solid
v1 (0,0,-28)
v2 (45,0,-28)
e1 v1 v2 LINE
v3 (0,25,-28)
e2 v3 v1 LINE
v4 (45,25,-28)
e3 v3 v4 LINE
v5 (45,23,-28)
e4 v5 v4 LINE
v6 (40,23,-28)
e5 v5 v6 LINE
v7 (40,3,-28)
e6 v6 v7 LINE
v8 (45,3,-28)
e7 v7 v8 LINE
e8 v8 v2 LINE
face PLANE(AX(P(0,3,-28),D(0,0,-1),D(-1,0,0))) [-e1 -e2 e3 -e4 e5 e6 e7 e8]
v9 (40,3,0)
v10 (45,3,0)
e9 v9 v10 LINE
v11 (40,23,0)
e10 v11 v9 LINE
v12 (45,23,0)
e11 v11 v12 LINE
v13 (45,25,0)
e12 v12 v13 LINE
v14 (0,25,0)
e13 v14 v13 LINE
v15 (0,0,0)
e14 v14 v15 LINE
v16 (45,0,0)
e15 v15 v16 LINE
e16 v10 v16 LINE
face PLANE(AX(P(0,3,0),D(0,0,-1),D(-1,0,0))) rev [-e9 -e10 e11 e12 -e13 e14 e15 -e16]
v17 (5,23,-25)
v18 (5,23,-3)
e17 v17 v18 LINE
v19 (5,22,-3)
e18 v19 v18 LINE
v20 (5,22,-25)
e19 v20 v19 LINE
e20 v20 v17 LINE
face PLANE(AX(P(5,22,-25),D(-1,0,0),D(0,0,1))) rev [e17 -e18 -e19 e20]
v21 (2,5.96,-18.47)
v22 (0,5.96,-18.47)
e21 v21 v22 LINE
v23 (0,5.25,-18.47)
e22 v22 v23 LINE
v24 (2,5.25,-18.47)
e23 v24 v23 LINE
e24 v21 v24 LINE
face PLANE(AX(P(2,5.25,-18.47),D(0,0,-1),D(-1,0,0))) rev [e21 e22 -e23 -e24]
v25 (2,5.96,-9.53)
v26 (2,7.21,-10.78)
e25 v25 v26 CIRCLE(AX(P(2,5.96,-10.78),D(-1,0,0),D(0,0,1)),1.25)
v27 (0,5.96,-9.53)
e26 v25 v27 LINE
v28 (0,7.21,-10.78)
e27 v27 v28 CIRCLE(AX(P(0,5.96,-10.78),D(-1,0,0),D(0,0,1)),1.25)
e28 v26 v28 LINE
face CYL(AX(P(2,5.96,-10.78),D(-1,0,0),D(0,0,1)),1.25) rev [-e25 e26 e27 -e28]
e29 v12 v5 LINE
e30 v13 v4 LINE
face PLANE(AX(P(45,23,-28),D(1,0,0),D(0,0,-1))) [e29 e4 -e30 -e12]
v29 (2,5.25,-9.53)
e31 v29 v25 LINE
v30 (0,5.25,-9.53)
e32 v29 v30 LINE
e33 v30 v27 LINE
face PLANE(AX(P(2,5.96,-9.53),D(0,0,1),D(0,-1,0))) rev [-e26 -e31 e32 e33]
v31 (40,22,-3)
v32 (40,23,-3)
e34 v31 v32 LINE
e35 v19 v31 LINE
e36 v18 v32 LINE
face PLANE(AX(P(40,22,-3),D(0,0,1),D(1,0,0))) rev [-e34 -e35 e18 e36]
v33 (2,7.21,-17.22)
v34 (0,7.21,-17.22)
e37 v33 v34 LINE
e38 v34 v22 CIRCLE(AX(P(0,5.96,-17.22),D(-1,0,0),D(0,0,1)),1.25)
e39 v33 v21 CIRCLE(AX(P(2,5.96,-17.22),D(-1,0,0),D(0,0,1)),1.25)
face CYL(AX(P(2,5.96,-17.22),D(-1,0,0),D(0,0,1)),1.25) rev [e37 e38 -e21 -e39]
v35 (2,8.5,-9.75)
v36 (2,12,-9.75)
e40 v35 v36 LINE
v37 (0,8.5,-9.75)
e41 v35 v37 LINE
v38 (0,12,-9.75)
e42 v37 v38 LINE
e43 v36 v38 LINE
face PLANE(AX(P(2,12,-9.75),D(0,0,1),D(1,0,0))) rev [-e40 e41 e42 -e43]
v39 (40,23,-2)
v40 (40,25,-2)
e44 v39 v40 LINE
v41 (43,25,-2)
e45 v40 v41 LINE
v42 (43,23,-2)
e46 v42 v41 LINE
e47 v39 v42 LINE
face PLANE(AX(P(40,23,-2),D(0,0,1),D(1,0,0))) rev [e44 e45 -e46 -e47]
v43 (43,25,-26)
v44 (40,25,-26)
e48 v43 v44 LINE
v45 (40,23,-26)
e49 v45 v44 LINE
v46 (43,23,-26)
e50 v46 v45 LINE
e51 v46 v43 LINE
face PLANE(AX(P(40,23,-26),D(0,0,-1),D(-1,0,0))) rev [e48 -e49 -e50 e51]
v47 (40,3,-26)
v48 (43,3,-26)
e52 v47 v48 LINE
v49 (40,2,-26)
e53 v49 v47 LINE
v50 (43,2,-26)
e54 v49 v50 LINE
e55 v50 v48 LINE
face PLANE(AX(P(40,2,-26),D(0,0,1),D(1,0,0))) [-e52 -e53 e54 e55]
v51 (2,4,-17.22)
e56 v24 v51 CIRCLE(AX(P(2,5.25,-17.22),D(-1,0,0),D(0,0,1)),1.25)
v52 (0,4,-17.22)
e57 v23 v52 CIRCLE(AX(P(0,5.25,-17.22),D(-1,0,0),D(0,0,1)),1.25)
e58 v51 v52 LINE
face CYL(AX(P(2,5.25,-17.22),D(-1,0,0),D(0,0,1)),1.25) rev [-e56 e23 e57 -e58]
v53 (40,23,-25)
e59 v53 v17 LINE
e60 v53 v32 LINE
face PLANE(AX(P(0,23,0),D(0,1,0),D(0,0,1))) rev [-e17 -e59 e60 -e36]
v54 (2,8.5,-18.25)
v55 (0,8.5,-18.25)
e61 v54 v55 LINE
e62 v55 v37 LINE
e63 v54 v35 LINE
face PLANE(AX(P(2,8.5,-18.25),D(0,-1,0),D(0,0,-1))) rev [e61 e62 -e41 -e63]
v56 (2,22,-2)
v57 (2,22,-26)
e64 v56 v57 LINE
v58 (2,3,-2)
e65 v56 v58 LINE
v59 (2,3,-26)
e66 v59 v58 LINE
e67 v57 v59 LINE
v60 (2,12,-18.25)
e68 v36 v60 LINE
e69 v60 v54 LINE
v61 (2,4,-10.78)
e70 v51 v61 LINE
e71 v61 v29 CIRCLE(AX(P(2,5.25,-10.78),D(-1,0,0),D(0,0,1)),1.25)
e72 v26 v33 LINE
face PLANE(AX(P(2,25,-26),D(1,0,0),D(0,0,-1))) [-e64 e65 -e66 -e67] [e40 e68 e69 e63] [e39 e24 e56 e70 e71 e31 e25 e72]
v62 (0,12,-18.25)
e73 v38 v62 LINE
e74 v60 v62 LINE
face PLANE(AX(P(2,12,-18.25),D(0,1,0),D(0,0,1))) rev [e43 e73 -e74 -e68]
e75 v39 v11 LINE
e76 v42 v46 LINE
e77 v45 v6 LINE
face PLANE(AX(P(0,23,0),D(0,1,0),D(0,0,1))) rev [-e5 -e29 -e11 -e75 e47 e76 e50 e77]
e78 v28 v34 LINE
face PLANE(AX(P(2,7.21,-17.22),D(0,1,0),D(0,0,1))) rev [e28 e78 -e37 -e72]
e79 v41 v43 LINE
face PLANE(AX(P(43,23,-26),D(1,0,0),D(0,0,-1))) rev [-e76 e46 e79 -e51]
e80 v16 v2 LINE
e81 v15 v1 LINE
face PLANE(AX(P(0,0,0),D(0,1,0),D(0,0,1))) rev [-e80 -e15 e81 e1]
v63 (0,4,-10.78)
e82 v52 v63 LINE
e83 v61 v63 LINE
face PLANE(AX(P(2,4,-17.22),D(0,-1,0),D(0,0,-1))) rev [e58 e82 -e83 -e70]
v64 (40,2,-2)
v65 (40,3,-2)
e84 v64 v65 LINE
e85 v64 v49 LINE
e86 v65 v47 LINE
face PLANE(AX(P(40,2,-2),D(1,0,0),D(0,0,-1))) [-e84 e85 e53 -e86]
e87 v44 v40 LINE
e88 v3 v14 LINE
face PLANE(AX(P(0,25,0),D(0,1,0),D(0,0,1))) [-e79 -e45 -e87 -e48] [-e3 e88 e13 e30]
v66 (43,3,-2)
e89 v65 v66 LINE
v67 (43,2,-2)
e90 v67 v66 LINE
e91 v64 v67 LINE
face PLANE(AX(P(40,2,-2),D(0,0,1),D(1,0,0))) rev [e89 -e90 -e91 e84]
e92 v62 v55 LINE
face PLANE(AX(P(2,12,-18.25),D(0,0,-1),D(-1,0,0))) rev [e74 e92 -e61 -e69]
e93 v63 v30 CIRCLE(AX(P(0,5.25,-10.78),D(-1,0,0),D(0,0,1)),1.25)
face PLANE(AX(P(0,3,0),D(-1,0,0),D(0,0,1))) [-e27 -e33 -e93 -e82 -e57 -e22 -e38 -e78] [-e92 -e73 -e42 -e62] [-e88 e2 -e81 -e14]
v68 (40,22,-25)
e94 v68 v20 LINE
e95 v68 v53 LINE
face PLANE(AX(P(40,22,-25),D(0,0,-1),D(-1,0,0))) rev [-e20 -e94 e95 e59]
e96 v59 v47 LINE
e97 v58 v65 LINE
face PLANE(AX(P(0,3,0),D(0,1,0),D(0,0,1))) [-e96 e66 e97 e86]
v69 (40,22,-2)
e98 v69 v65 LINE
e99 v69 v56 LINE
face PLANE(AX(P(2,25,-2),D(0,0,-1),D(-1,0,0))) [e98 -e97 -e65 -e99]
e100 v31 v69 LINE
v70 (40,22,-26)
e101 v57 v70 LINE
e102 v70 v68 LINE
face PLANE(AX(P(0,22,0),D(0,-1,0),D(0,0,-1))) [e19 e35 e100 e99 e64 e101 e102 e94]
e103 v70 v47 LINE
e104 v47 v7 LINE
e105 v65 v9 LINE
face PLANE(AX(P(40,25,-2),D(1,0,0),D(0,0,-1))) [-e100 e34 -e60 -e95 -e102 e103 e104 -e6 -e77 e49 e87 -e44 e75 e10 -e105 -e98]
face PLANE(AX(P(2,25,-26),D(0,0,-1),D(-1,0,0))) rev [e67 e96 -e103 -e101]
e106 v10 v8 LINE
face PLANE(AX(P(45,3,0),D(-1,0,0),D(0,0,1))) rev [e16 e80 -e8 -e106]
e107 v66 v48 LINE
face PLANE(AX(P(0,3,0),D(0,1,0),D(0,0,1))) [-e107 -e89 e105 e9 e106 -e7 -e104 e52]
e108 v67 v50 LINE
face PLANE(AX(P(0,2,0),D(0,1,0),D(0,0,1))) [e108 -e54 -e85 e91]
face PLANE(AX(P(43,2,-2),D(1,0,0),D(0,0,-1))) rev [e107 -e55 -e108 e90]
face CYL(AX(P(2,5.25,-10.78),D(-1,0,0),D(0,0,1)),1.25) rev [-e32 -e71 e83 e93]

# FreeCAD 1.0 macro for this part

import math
import FreeCAD as App
import Part
import Sketcher
from FreeCAD import Vector
Q = App.Units.Quantity

doc = App.newDocument("Part")
body = doc.addObject("PartDesign::Body", "Body")

sketch1 = body.newObject("Sketcher::SketchObject", "Sketch")
sketch1.AttachmentSupport = (doc.getObject("XZ_Plane"), [""])
sketch1.MapMode = "FlatFace"
sketch1.addGeometry([
    Part.LineSegment(Vector(0, -28, 0), Vector(0, 0, 0)),
    Part.LineSegment(Vector(0, 0, 0), Vector(45, 0, 0)),
    Part.LineSegment(Vector(45, 0, 0), Vector(45, -28, 0)),
    Part.LineSegment(Vector(45, -28, 0), Vector(0, -28, 0)),
], False)
sketch1.addConstraint([
    Sketcher.Constraint("Coincident", 0, 2, 1, 1),
    Sketcher.Constraint("Coincident", 1, 2, 2, 1),
    Sketcher.Constraint("Coincident", 2, 2, 3, 1),
    Sketcher.Constraint("Coincident", 3, 2, 0, 1),
    Sketcher.Constraint("Vertical", 0),
    Sketcher.Constraint("Horizontal", 1),
    Sketcher.Constraint("Vertical", 2),
    Sketcher.Constraint("Horizontal", 3),
    Sketcher.Constraint("Coincident", 0, 2, -1, 1),
    Sketcher.Constraint("DistanceX", 1, 1, 1, 2, Q("45 mm")),
    Sketcher.Constraint("DistanceY", 0, 1, 0, 2, Q("28 mm")),
])
pad1 = body.newObject("PartDesign::Pad", "Pad")
pad1.Profile = sketch1
pad1.Length = 3
pad1.Reversed = True

sketch2 = body.newObject("Sketcher::SketchObject", "Sketch001")
sketch2.AttachmentSupport = (doc.getObject("XZ_Plane"), [""])
sketch2.MapMode = "FlatFace"
sketch2.AttachmentOffset = App.Placement(Vector(0, 0, -3), App.Rotation())
sketch2.addGeometry([
    Part.LineSegment(Vector(40, -26, 0), Vector(40, -28, 0)),
    Part.LineSegment(Vector(40, -28, 0), Vector(0, -28, 0)),
    Part.LineSegment(Vector(0, -28, 0), Vector(0, 0, 0)),
    Part.LineSegment(Vector(0, 0, 0), Vector(40, 0, 0)),
    Part.LineSegment(Vector(40, 0, 0), Vector(40, -2, 0)),
    Part.LineSegment(Vector(40, -2, 0), Vector(2, -2, 0)),
    Part.LineSegment(Vector(2, -2, 0), Vector(2, -26, 0)),
    Part.LineSegment(Vector(2, -26, 0), Vector(40, -26, 0)),
], False)
sketch2.addConstraint([
    Sketcher.Constraint("Coincident", 0, 2, 1, 1),
    Sketcher.Constraint("Coincident", 1, 2, 2, 1),
    Sketcher.Constraint("Coincident", 2, 2, 3, 1),
    Sketcher.Constraint("Coincident", 3, 2, 4, 1),
    Sketcher.Constraint("Coincident", 4, 2, 5, 1),
    Sketcher.Constraint("Coincident", 5, 2, 6, 1),
    Sketcher.Constraint("Coincident", 6, 2, 7, 1),
    Sketcher.Constraint("Coincident", 7, 2, 0, 1),
    Sketcher.Constraint("Vertical", 0),
    Sketcher.Constraint("Horizontal", 1),
    Sketcher.Constraint("Vertical", 2),
    Sketcher.Constraint("Horizontal", 3),
    Sketcher.Constraint("Vertical", 4),
    Sketcher.Constraint("Horizontal", 5),
    Sketcher.Constraint("Vertical", 6),
    Sketcher.Constraint("Horizontal", 7),
    Sketcher.Constraint("Coincident", 2, 2, -1, 1),
    Sketcher.Constraint("Vertical", 0, 2, 3, 2),
    Sketcher.Constraint("Equal", 0, 4),
    Sketcher.Constraint("DistanceX", 1, 2, 1, 1, Q("40 mm")),
    Sketcher.Constraint("DistanceX", 5, 2, 5, 1, Q("38 mm")),
    Sketcher.Constraint("DistanceY", 0, 2, 0, 1, Q("2 mm")),
    Sketcher.Constraint("DistanceY", 2, 1, 2, 2, Q("28 mm")),
])
pad2 = body.newObject("PartDesign::Pad", "Pad001")
pad2.Profile = sketch2
pad2.Length = 22
pad2.Reversed = True

sketch3 = body.newObject("Sketcher::SketchObject", "Sketch002")
sketch3.AttachmentSupport = (doc.getObject("XZ_Plane"), [""])
sketch3.MapMode = "FlatFace"
sketch3.AttachmentOffset = App.Placement(Vector(0, 0, -25), App.Rotation())
sketch3.addGeometry([
    Part.LineSegment(Vector(0, -28, 0), Vector(0, 0, 0)),
    Part.LineSegment(Vector(0, 0, 0), Vector(45, 0, 0)),
    Part.LineSegment(Vector(45, 0, 0), Vector(45, -28, 0)),
    Part.LineSegment(Vector(45, -28, 0), Vector(0, -28, 0)),
    Part.LineSegment(Vector(43, -2, 0), Vector(40, -2, 0)),
    Part.LineSegment(Vector(40, -2, 0), Vector(40, -26, 0)),
    Part.LineSegment(Vector(40, -26, 0), Vector(43, -26, 0)),
    Part.LineSegment(Vector(43, -26, 0), Vector(43, -2, 0)),
], False)
sketch3.addConstraint([
    Sketcher.Constraint("Coincident", 0, 2, 1, 1),
    Sketcher.Constraint("Coincident", 1, 2, 2, 1),
    Sketcher.Constraint("Coincident", 2, 2, 3, 1),
    Sketcher.Constraint("Coincident", 3, 2, 0, 1),
    Sketcher.Constraint("Coincident", 4, 2, 5, 1),
    Sketcher.Constraint("Coincident", 5, 2, 6, 1),
    Sketcher.Constraint("Coincident", 6, 2, 7, 1),
    Sketcher.Constraint("Coincident", 7, 2, 4, 1),
    Sketcher.Constraint("Vertical", 0),
    Sketcher.Constraint("Horizontal", 1),
    Sketcher.Constraint("Vertical", 2),
    Sketcher.Constraint("Horizontal", 3),
    Sketcher.Constraint("Horizontal", 4),
    Sketcher.Constraint("Vertical", 5),
    Sketcher.Constraint("Horizontal", 6),
    Sketcher.Constraint("Vertical", 7),
    Sketcher.Constraint("Coincident", 0, 2, -1, 1),
    Sketcher.Constraint("DistanceX", 1, 1, 1, 2, Q("45 mm")),
    Sketcher.Constraint("DistanceX", 4, 2, 4, 1, Q("3 mm")),
    Sketcher.Constraint("DistanceY", 0, 1, 0, 2, Q("28 mm")),
    Sketcher.Constraint("DistanceY", 5, 2, 5, 1, Q("24 mm")),
    Sketcher.Constraint("DistanceX", -1, 1, 4, 2, Q("40 mm")),
    Sketcher.Constraint("DistanceY", 4, 2, -1, 1, Q("2 mm")),
])
pad3 = body.newObject("PartDesign::Pad", "Pad002")
pad3.Profile = sketch3
pad3.Length = 2

sketch4 = body.newObject("Sketcher::SketchObject", "Sketch003")
sketch4.AttachmentSupport = (doc.getObject("YZ_Plane"), [""])
sketch4.MapMode = "FlatFace"
sketch4.addGeometry([
    Part.LineSegment(Vector(6, -18.5, 0), Vector(5.2, -18.5, 0)),
    Part.ArcOfCircle(Part.Circle(Vector(5.3, -17.2, 0), Vector(0, 0, 1), 1.3), math.radians(-180), math.radians(-90)),
    Part.LineSegment(Vector(4, -17.2, 0), Vector(4, -10.8, 0)),
    Part.ArcOfCircle(Part.Circle(Vector(5.3, -10.8, 0), Vector(0, 0, 1), 1.3), math.radians(90), math.radians(180)),
    Part.LineSegment(Vector(5.2, -9.5, 0), Vector(6, -9.5, 0)),
    Part.ArcOfCircle(Part.Circle(Vector(6, -10.8, 0), Vector(0, 0, 1), 1.3), math.radians(0), math.radians(90)),
    Part.LineSegment(Vector(7.2, -10.8, 0), Vector(7.2, -17.2, 0)),
    Part.ArcOfCircle(Part.Circle(Vector(6, -17.2, 0), Vector(0, 0, 1), 1.3), math.radians(-90), math.radians(0)),
    Part.LineSegment(Vector(12, -18.2, 0), Vector(8.5, -18.2, 0)),
    Part.LineSegment(Vector(8.5, -18.2, 0), Vector(8.5, -9.8, 0)),
    Part.LineSegment(Vector(8.5, -9.8, 0), Vector(12, -9.8, 0)),
    Part.LineSegment(Vector(12, -9.8, 0), Vector(12, -18.2, 0)),
], False)
sketch4.addConstraint([
    Sketcher.Constraint("Tangent", 0, 2, 1, 2),
    Sketcher.Constraint("Tangent", 1, 1, 2, 1),
    Sketcher.Constraint("Tangent", 2, 2, 3, 2),
    Sketcher.Constraint("Tangent", 3, 1, 4, 1),
    Sketcher.Constraint("Tangent", 4, 2, 5, 2),
    Sketcher.Constraint("Tangent", 5, 1, 6, 1),
    Sketcher.Constraint("Tangent", 6, 2, 7, 2),
    Sketcher.Constraint("Tangent", 7, 1, 0, 1),
    Sketcher.Constraint("Coincident", 8, 2, 9, 1),
    Sketcher.Constraint("Coincident", 9, 2, 10, 1),
    Sketcher.Constraint("Coincident", 10, 2, 11, 1),
    Sketcher.Constraint("Coincident", 11, 2, 8, 1),
    Sketcher.Constraint("Horizontal", 0),
    Sketcher.Constraint("Vertical", 2),
    Sketcher.Constraint("Horizontal", 4),
    Sketcher.Constraint("Vertical", 6),
    Sketcher.Constraint("Horizontal", 8),
    Sketcher.Constraint("Vertical", 9),
    Sketcher.Constraint("Horizontal", 10),
    Sketcher.Constraint("Vertical", 11),
    Sketcher.Constraint("Equal", 1, 3),
    Sketcher.Constraint("Equal", 3, 5),
    Sketcher.Constraint("Equal", 5, 7),
    Sketcher.Constraint("Radius", 1, Q("1.25 mm")),
    Sketcher.Constraint("DistanceX", 8, 2, 8, 1, Q("3.5 mm")),
    Sketcher.Constraint("DistanceY", 9, 1, 9, 2, Q("8.5 mm")),
    Sketcher.Constraint("DistanceX", -1, 1, 1, 1, Q("4 mm")),
    Sketcher.Constraint("DistanceX", -1, 1, 10, 2, Q("12 mm")),
    Sketcher.Constraint("DistanceX", 0, 2, 0, 1, Q("0.71 mm")),
    Sketcher.Constraint("DistanceY", 2, 1, 2, 2, Q("6.44 mm")),
    Sketcher.Constraint("DistanceY", 1, 3, -1, 1, Q("17.22 mm")),
    Sketcher.Constraint("DistanceY", 8, 2, -1, 1, Q("18.25 mm")),
])
pocket1 = body.newObject("PartDesign::Pocket", "Pocket")
pocket1.Profile = sketch4
pocket1.Length = 2
pocket1.Reversed = True

sketch5 = body.newObject("Sketcher::SketchObject", "Sketch004")
sketch5.AttachmentSupport = (doc.getObject("XZ_Plane"), [""])
sketch5.MapMode = "FlatFace"
sketch5.AttachmentOffset = App.Placement(Vector(0, 0, -23), App.Rotation())
sketch5.addGeometry([
    Part.LineSegment(Vector(40, -25, 0), Vector(5, -25, 0)),
    Part.LineSegment(Vector(5, -25, 0), Vector(5, -3, 0)),
    Part.LineSegment(Vector(5, -3, 0), Vector(40, -3, 0)),
    Part.LineSegment(Vector(40, -3, 0), Vector(40, -2, 0)),
    Part.LineSegment(Vector(40, -2, 0), Vector(2, -2, 0)),
    Part.LineSegment(Vector(2, -2, 0), Vector(2, -26, 0)),
    Part.LineSegment(Vector(2, -26, 0), Vector(40, -26, 0)),
    Part.LineSegment(Vector(40, -26, 0), Vector(40, -25, 0)),
], False)
sketch5.addConstraint([
    Sketcher.Constraint("Coincident", 0, 2, 1, 1),
    Sketcher.Constraint("Coincident", 1, 2, 2, 1),
    Sketcher.Constraint("Coincident", 2, 2, 3, 1),
    Sketcher.Constraint("Coincident", 3, 2, 4, 1),
    Sketcher.Constraint("Coincident", 4, 2, 5, 1),
    Sketcher.Constraint("Coincident", 5, 2, 6, 1),
    Sketcher.Constraint("Coincident", 6, 2, 7, 1),
    Sketcher.Constraint("Coincident", 7, 2, 0, 1),
    Sketcher.Constraint("Horizontal", 0),
    Sketcher.Constraint("Vertical", 1),
    Sketcher.Constraint("Horizontal", 2),
    Sketcher.Constraint("Vertical", 3),
    Sketcher.Constraint("Horizontal", 4),
    Sketcher.Constraint("Vertical", 5),
    Sketcher.Constraint("Horizontal", 6),
    Sketcher.Constraint("Vertical", 7),
    Sketcher.Constraint("Vertical", 3, 2, 6, 2),
    Sketcher.Constraint("Equal", 3, 7),
    Sketcher.Constraint("DistanceX", 0, 2, 0, 1, Q("35 mm")),
    Sketcher.Constraint("DistanceX", 4, 2, 4, 1, Q("38 mm")),
    Sketcher.Constraint("DistanceY", 1, 1, 1, 2, Q("22 mm")),
    Sketcher.Constraint("DistanceY", 3, 1, 3, 2, Q("1 mm")),
    Sketcher.Constraint("DistanceX", -1, 1, 0, 2, Q("5 mm")),
    Sketcher.Constraint("DistanceY", 0, 2, -1, 1, Q("25 mm")),
])
pad4 = body.newObject("PartDesign::Pad", "Pad003")
pad4.Profile = sketch5
pad4.Length = 1

sketch6 = body.newObject("Sketcher::SketchObject", "Sketch005")
sketch6.AttachmentSupport = (doc.getObject("XZ_Plane"), [""])
sketch6.MapMode = "FlatFace"
sketch6.AttachmentOffset = App.Placement(Vector(0, 0, -3), App.Rotation())
sketch6.addGeometry([
    Part.LineSegment(Vector(40, -26, 0), Vector(40, -2, 0)),
    Part.LineSegment(Vector(40, -2, 0), Vector(43, -2, 0)),
    Part.LineSegment(Vector(43, -2, 0), Vector(43, -26, 0)),
    Part.LineSegment(Vector(43, -26, 0), Vector(40, -26, 0)),
], False)
sketch6.addConstraint([
    Sketcher.Constraint("Coincident", 0, 2, 1, 1),
    Sketcher.Constraint("Coincident", 1, 2, 2, 1),
    Sketcher.Constraint("Coincident", 2, 2, 3, 1),
    Sketcher.Constraint("Coincident", 3, 2, 0, 1),
    Sketcher.Constraint("Vertical", 0),
    Sketcher.Constraint("Horizontal", 1),
    Sketcher.Constraint("Vertical", 2),
    Sketcher.Constraint("Horizontal", 3),
    Sketcher.Constraint("DistanceX", 1, 1, 1, 2, Q("3 mm")),
    Sketcher.Constraint("DistanceY", 0, 1, 0, 2, Q("24 mm")),
    Sketcher.Constraint("DistanceX", -1, 1, 0, 2, Q("40 mm")),
    Sketcher.Constraint("DistanceY", 0, 2, -1, 1, Q("2 mm")),
])
pocket2 = body.newObject("PartDesign::Pocket", "Pocket001")
pocket2.Profile = sketch6
pocket2.Length = 1
pocket2.Reversed = True

doc.recompute()
